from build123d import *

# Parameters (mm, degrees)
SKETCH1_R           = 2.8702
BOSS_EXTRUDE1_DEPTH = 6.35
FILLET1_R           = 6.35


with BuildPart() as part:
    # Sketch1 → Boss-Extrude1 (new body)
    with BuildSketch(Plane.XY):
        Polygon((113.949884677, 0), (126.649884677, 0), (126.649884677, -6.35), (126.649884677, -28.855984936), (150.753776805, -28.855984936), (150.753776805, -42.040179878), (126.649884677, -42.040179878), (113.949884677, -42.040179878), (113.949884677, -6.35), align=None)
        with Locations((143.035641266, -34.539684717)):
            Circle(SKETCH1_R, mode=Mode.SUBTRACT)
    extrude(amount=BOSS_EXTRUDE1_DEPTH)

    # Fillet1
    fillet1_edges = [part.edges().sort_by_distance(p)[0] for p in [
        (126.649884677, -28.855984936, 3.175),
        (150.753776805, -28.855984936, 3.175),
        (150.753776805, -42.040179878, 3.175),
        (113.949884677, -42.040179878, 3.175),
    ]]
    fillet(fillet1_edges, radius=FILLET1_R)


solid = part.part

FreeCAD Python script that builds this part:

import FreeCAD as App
import Part
import Sketcher

V = App.Vector
Q = App.Units.Quantity


def edges_at(feature, points):
    """Names of the edges that pass closest to the given points."""
    edges = feature.Shape.Edges
    near = lambda p: min(range(len(edges)), key=lambda i: edges[i].distToShape(Part.Vertex(*p))[0])
    return sorted({f"Edge{near(p) + 1}" for p in points})


def add_polygon(sketch, points):
    """Adds a closed chain of lines whose ends are joined by coincident constraints."""
    first, n = sketch.GeometryCount, len(points)
    for a, b in zip(points, points[1:] + points[:1]):
        sketch.addGeometry(Part.LineSegment(App.Vector(*a, 0), App.Vector(*b, 0)), False)
    for i in range(n):
        sketch.addConstraint(Sketcher.Constraint("Coincident", first + i, 2, first + (i + 1) % n, 1))

doc = App.newDocument("Part")
body = doc.addObject("PartDesign::Body", "Body")

sketch1 = body.newObject("Sketcher::SketchObject", "Sketch")
sketch1.AttachmentSupport = (doc.getObject("XY_Plane"), [""])
sketch1.MapMode = "FlatFace"
add_polygon(sketch1, [(126.649885, 0), (113.949885, 0), (113.949885, -42.04018), (150.753777, -42.04018), (150.753777, -28.855985), (126.649885, -28.855985)])
sketch1.addGeometry(Part.Circle(V(143.035641, -34.539685, 0), V(0, 0, 1), 2.8702), False)
sketch1.addConstraint(Sketcher.Constraint("Horizontal", 0))
sketch1.addConstraint(Sketcher.Constraint("Vertical", 1))
sketch1.addConstraint(Sketcher.Constraint("Horizontal", 2))
sketch1.addConstraint(Sketcher.Constraint("Vertical", 3))
sketch1.addConstraint(Sketcher.Constraint("Horizontal", 4))
sketch1.addConstraint(Sketcher.Constraint("Vertical", 5))
sketch1.addConstraint(Sketcher.Constraint("PointOnObject", 0, 2, -1))
sketch1.addConstraint(Sketcher.Constraint("Diameter", 6, Q("0.226 in")))
sketch1.addConstraint(Sketcher.Constraint("DistanceX", 0, 2, 0, 1, Q("0.5 in")))
sketch1.addConstraint(Sketcher.Constraint("DistanceY", 1, 2, 1, 1, 42.04018))
sketch1.addConstraint(Sketcher.Constraint("DistanceY", 6, 3, 3, 2, 5.6837))
sketch1.addConstraint(Sketcher.Constraint("DistanceX", 2, 1, 2, 2, 36.803892))
sketch1.addConstraint(Sketcher.Constraint("DistanceY", 3, 1, 3, 2, 13.184195))
sketch1.addConstraint(Sketcher.Constraint("DistanceX", -1, 1, 6, 3, 143.035641))
sketch1.addConstraint(Sketcher.Constraint("DistanceX", -1, 1, 0, 2, 113.949885))
pad1 = body.newObject("PartDesign::Pad", "Pad")
pad1.Profile = sketch1
pad1.Length = Q("0.25 in")
doc.recompute()

fillet = body.newObject("PartDesign::Fillet", "Fillet")
fillet.Base = (pad1, edges_at(pad1, [
    (126.65, -28.856, 3.175),
    (150.754, -28.856, 3.175),
    (150.754, -42.04, 3.175),
    (113.95, -42.04, 3.175),
]))
fillet.Radius = Q("0.25 in")

doc.recompute()
